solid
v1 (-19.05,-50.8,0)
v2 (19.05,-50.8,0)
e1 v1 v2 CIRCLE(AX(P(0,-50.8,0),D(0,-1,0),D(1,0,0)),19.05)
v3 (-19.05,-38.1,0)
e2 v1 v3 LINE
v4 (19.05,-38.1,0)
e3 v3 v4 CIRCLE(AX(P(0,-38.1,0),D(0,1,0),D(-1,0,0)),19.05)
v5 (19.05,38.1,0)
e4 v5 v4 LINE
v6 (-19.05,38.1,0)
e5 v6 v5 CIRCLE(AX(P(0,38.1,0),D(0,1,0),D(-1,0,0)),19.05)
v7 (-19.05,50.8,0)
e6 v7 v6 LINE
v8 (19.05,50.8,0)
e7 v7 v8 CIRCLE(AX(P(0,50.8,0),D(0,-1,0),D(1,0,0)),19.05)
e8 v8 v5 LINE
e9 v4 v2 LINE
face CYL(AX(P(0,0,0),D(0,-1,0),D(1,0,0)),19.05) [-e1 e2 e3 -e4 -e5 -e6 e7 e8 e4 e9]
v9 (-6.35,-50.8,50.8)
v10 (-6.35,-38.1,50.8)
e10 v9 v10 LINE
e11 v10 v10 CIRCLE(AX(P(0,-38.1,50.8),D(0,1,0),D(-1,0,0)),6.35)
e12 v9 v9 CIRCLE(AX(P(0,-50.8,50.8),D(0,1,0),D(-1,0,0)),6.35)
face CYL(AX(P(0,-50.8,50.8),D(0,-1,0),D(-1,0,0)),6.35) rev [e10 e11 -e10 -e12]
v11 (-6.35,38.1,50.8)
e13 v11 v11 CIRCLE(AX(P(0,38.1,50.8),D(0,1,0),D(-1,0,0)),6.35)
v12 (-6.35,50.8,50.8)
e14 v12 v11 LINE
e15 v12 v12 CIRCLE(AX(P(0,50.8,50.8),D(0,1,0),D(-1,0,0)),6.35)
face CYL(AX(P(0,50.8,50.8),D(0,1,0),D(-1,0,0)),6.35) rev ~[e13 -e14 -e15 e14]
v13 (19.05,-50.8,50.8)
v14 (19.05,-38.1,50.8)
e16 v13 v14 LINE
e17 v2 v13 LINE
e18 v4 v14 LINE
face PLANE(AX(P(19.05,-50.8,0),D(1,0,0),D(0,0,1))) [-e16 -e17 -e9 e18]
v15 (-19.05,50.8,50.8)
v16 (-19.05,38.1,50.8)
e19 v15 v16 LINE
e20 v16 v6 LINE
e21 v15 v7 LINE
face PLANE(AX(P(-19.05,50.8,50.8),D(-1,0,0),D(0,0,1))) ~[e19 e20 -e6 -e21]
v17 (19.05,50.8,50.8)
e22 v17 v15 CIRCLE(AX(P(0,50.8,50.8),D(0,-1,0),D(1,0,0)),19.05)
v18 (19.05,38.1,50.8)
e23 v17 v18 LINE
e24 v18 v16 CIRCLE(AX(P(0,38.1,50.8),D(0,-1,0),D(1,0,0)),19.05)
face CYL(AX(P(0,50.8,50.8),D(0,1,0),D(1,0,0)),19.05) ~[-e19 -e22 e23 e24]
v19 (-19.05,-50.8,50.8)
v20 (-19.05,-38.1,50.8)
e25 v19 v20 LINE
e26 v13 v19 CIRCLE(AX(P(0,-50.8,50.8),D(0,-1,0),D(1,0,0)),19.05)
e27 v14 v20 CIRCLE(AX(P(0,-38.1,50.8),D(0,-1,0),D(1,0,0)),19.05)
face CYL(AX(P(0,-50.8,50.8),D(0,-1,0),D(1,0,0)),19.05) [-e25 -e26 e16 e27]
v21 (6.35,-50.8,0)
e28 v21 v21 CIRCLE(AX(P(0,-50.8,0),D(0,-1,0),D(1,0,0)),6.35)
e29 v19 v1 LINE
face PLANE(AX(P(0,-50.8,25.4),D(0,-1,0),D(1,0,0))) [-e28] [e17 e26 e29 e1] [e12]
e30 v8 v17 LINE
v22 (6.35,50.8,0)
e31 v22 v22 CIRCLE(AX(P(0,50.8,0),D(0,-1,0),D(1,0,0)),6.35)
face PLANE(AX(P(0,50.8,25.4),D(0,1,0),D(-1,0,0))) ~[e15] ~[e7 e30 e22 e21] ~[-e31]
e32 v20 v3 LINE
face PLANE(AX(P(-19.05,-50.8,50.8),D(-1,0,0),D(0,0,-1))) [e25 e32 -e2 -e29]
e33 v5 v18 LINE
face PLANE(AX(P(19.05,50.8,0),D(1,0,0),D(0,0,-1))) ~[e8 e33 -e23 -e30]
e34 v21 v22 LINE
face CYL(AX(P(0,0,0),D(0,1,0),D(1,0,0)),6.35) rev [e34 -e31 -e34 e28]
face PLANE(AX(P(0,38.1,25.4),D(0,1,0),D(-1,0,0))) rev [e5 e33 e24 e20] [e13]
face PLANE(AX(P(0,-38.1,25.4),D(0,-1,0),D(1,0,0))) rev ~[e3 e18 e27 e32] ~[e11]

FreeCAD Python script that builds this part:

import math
import FreeCAD as App
import Part
import Sketcher
from FreeCAD import Vector
Q = App.Units.Quantity

doc = App.newDocument("Part")
body = doc.addObject("PartDesign::Body", "Body")

# Sketch on XZ plane
sketch1 = body.newObject("Sketcher::SketchObject", "Sketch")
sketch1.AttachmentSupport = (doc.getObject("XZ_Plane"), [""])
sketch1.MapMode = "FlatFace"
sketch1.addGeometry([
    Part.Circle(Vector(0, 0, 0), Vector(0, 0, 1), 19.05),
    Part.Circle(Vector(0, 0, 0), Vector(0, 0, 1), 6.35),
], False)
sketch1.addConstraint([
    Sketcher.Constraint("Coincident", 0, 3, -1, 1),
    Sketcher.Constraint("Coincident", 1, 3, -1, 1),
    Sketcher.Constraint("Diameter", 0, Q("1.5 in")),
    Sketcher.Constraint("Diameter", 1, Q("0.5 in")),
])
pad1 = body.newObject("PartDesign::Pad", "Pad")
pad1.Profile = sketch1
pad1.Length = Q("4 in")
pad1.Midplane = True

# Sketch on XZ plane
sketch2 = body.newObject("Sketcher::SketchObject", "Sketch001")
sketch2.AttachmentSupport = (doc.getObject("XZ_Plane"), [""])
sketch2.MapMode = "FlatFace"
sketch2.AttachmentOffset = App.Placement(Vector(0, 0, 2 * 25.4), App.Rotation())
sketch2.addGeometry([
    Part.LineSegment(Vector(-19.05, 50.8, 0), Vector(-19.05, 0, 0)),  # 0
    Part.ArcOfCircle(Part.Circle(Vector(0, 0, 0), Vector(0, 0, 1), 19.05), math.radians(0), math.radians(180)),  # 1
    Part.LineSegment(Vector(19.05, 0, 0), Vector(19.05, 50.8, 0)),  # 2
    Part.ArcOfCircle(Part.Circle(Vector(0, 50.8, 0), Vector(0, 0, 1), 19.05), math.radians(0), math.radians(180)),  # 3
    Part.Circle(Vector(0, 50.8, 0), Vector(0, 0, 1), 6.35),  # 4
], False)
sketch2.addConstraint([
    Sketcher.Constraint("Tangent", 0, 2, 1, 2),
    Sketcher.Constraint("Tangent", 1, 1, 2, 1),
    Sketcher.Constraint("Tangent", 2, 2, 3, 1),
    Sketcher.Constraint("Tangent", 3, 2, 0, 1),
    Sketcher.Constraint("Vertical", 0),
    Sketcher.Constraint("Vertical", 2),
    Sketcher.Constraint("Coincident", 1, 3, -1, 1),
    Sketcher.Constraint("Coincident", 4, 3, 3, 3),
    Sketcher.Constraint("Diameter", 4, Q("0.5 in")),
    Sketcher.Constraint("DistanceY", 0, 2, 0, 1, Q("2 in")),
    Sketcher.Constraint("Radius", 1, Q("0.75 in")),
])
pad2 = body.newObject("PartDesign::Pad", "Pad001")
pad2.Profile = sketch2
pad2.Length = Q("0.5 in")
pad2.Reversed = True
body2 = doc.addObject("PartDesign::Body", "Body001")
doc.recompute()

body2.BaseFeature = body
doc.recompute()

mirroring = doc.addObject("Part::Mirroring", "Mirroring")
mirroring.Source = body
mirroring.Base = Vector(0, 0, 0)
mirroring.Normal = Vector(0, -1, 0)
body3 = doc.addObject("PartDesign::Body", "Body002")
body3.BaseFeature = mirroring
boolean = body2.newObject("PartDesign::Boolean", "Boolean")
boolean.Type = "Fuse"
boolean.addObjects([body3])
doc.recompute()
mirroring.Visibility = False

doc.recompute()
